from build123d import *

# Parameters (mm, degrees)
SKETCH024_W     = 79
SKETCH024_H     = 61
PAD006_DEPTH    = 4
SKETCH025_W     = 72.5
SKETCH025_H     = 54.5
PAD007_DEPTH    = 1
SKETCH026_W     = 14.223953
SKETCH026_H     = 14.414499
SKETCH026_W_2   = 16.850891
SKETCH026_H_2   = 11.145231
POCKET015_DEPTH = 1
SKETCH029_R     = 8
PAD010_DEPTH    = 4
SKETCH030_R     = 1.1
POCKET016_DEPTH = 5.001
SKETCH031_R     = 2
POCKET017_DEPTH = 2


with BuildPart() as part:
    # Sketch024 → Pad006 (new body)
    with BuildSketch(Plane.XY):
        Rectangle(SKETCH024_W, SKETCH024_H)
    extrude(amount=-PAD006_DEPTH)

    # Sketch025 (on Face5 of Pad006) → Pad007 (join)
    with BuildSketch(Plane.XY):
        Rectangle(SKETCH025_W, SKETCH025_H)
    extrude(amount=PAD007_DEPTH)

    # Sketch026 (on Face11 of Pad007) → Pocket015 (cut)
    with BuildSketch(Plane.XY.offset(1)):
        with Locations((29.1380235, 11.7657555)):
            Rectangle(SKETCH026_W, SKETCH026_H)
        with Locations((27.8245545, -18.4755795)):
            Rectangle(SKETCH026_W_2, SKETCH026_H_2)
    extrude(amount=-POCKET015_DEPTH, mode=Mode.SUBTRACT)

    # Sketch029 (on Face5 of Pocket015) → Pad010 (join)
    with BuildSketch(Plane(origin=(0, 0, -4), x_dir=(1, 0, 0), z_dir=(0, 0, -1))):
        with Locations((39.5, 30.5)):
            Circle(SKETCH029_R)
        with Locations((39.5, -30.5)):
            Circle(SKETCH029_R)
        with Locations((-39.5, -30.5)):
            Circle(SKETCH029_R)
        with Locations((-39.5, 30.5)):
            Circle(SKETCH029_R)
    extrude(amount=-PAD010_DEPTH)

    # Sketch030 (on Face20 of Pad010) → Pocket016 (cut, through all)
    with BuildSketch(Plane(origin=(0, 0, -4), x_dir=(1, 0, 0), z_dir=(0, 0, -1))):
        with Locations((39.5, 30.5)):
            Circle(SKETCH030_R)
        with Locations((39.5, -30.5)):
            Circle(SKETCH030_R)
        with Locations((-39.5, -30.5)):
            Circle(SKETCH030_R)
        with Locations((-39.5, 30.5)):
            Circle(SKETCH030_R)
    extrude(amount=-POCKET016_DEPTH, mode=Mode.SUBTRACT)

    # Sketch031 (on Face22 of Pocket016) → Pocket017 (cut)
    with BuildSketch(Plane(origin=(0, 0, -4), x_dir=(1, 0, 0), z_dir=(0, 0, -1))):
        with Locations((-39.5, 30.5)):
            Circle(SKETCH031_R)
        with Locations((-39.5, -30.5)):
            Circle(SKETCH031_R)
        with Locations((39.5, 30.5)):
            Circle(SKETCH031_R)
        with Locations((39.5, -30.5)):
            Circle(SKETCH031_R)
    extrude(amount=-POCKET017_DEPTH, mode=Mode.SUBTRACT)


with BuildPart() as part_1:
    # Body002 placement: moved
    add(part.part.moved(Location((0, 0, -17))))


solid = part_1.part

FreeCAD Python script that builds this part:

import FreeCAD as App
import Part
import Sketcher

V = App.Vector

doc = App.newDocument("Part")
body = doc.addObject("PartDesign::Body", "Body")

# Sketch on XY plane
sketch1 = body.newObject("Sketcher::SketchObject", "Sketch")
sketch1.AttachmentSupport = (doc.getObject("XY_Plane"), [""])
sketch1.MapMode = "FlatFace"
sketch1.addGeometry([
    Part.LineSegment(V(-40, 30, 0), V(-40, -30, 0)),
    Part.LineSegment(V(-40, -30, 0), V(40, -30, 0)),
    Part.LineSegment(V(40, -30, 0), V(40, 30, 0)),
    Part.LineSegment(V(40, 30, 0), V(-40, 30, 0)),
], False)
sketch1.addConstraint([
    Sketcher.Constraint("Coincident", 0, 2, 1, 1),
    Sketcher.Constraint("Coincident", 1, 2, 2, 1),
    Sketcher.Constraint("Coincident", 2, 2, 3, 1),
    Sketcher.Constraint("Coincident", 3, 2, 0, 1),
    Sketcher.Constraint("Vertical", 0),
    Sketcher.Constraint("Horizontal", 1),
    Sketcher.Constraint("Vertical", 2),
    Sketcher.Constraint("Horizontal", 3),
    Sketcher.Constraint("Symmetric", 0, 2, 2, 2, -1, 1),
    Sketcher.Constraint("DistanceX", 1, 1, 1, 2, 79.0),
    Sketcher.Constraint("DistanceY", 0, 2, 0, 1, 61.0),
])
pad1 = body.newObject("PartDesign::Pad", "Pad")
pad1.Profile = sketch1
pad1.Length = 4
pad1.Reversed = True

# Sketch on XY plane
sketch2 = body.newObject("Sketcher::SketchObject", "Sketch001")
sketch2.AttachmentSupport = (doc.getObject("XY_Plane"), [""])
sketch2.MapMode = "FlatFace"
sketch2.addGeometry([
    Part.LineSegment(V(-36, 27, 0), V(-36, -27, 0)),
    Part.LineSegment(V(-36, -27, 0), V(36, -27, 0)),
    Part.LineSegment(V(36, -27, 0), V(36, 27, 0)),
    Part.LineSegment(V(36, 27, 0), V(-36, 27, 0)),
], False)
sketch2.addConstraint([
    Sketcher.Constraint("Coincident", 0, 2, 1, 1),
    Sketcher.Constraint("Coincident", 1, 2, 2, 1),
    Sketcher.Constraint("Coincident", 2, 2, 3, 1),
    Sketcher.Constraint("Coincident", 3, 2, 0, 1),
    Sketcher.Constraint("Vertical", 0),
    Sketcher.Constraint("Horizontal", 1),
    Sketcher.Constraint("Vertical", 2),
    Sketcher.Constraint("Horizontal", 3),
    Sketcher.Constraint("Symmetric", 0, 2, 2, 2, -1, 1),
    Sketcher.Constraint("DistanceX", 1, 1, 1, 2, 72.5),
    Sketcher.Constraint("DistanceY", 0, 2, 0, 1, 54.5),
])
pad2 = body.newObject("PartDesign::Pad", "Pad001")
pad2.Profile = sketch2
pad2.Length = 1

# Sketch on XY plane
sketch3 = body.newObject("Sketcher::SketchObject", "Sketch002")
sketch3.AttachmentSupport = (doc.getObject("XY_Plane"), [""])
sketch3.MapMode = "FlatFace"
sketch3.AttachmentOffset = App.Placement(V(0, 0, 1), App.Rotation())
sketch3.addGeometry([
    Part.LineSegment(V(22, 19, 0), V(22, 5, 0)),  # 0
    Part.LineSegment(V(22, 5, 0), V(36, 5, 0)),  # 1
    Part.LineSegment(V(36, 5, 0), V(36, 19, 0)),  # 2
    Part.LineSegment(V(36, 19, 0), V(22, 19, 0)),  # 3
    Part.LineSegment(V(19, -13, 0), V(19, -24, 0)),  # 4
    Part.LineSegment(V(19, -24, 0), V(36, -24, 0)),  # 5
    Part.LineSegment(V(36, -24, 0), V(36, -13, 0)),  # 6
    Part.LineSegment(V(36, -13, 0), V(19, -13, 0)),  # 7
], False)
sketch3.addConstraint([
    Sketcher.Constraint("Coincident", 0, 2, 1, 1),
    Sketcher.Constraint("Coincident", 1, 2, 2, 1),
    Sketcher.Constraint("Coincident", 2, 2, 3, 1),
    Sketcher.Constraint("Coincident", 3, 2, 0, 1),
    Sketcher.Constraint("Coincident", 4, 2, 5, 1),
    Sketcher.Constraint("Coincident", 5, 2, 6, 1),
    Sketcher.Constraint("Coincident", 6, 2, 7, 1),
    Sketcher.Constraint("Coincident", 7, 2, 4, 1),
    Sketcher.Constraint("Vertical", 0),
    Sketcher.Constraint("Horizontal", 1),
    Sketcher.Constraint("Vertical", 2),
    Sketcher.Constraint("Horizontal", 3),
    Sketcher.Constraint("Vertical", 4),
    Sketcher.Constraint("Horizontal", 5),
    Sketcher.Constraint("Vertical", 6),
    Sketcher.Constraint("Horizontal", 7),
    Sketcher.Constraint("Vertical", 2, 2, 5, 2),
    Sketcher.Constraint("DistanceX", -1, 1, 1, 2, 36.25),
    Sketcher.Constraint("DistanceY", 0, 2, 0, 1, 14.414499),
    Sketcher.Constraint("DistanceX", 5, 1, 5, 2, 16.850891),
    Sketcher.Constraint("DistanceY", 4, 2, 4, 1, 11.145231),
    Sketcher.Constraint("DistanceY", 4, 2, 0, 2, 28.606701),
    Sketcher.Constraint("DistanceX", 1, 1, 1, 2, 14.223953),
    Sketcher.Constraint("DistanceY", -1, 1, 0, 2, 4.558506),
])
pocket1 = body.newObject("PartDesign::Pocket", "Pocket")
pocket1.Profile = sketch3
pocket1.Length = 1

# Sketch on XY plane
sketch4 = body.newObject("Sketcher::SketchObject", "Sketch003")
sketch4.AttachmentSupport = (doc.getObject("XY_Plane"), [""])
sketch4.MapMode = "FlatFace"
sketch4.AttachmentOffset = App.Placement(V(0, 0, -4), App.Rotation())
sketch4.addGeometry([
    Part.Circle(V(40, -30, 0), V(0, 0, 1), 8),
    Part.Circle(V(40, 30, 0), V(0, 0, 1), 8),
    Part.Circle(V(-40, 30, 0), V(0, 0, 1), 8),
    Part.Circle(V(-40, -30, 0), V(0, 0, 1), 8),
], False)
sketch4.addConstraint([
    Sketcher.Constraint("Equal", 0, 1),
    Sketcher.Constraint("Equal", 1, 2),
    Sketcher.Constraint("Equal", 2, 3),
    Sketcher.Constraint("Symmetric", 0, 3, 2, 3, -1, 1),
    Sketcher.Constraint("Symmetric", 1, 3, 3, 3, -1, 1),
    Sketcher.Constraint("Symmetric", 1, 3, 2, 3, -2),
    Sketcher.Constraint("Diameter", 0, 16.0),
    Sketcher.Constraint("DistanceY", 0, 3, 1, 3, 61.0),
    Sketcher.Constraint("DistanceX", 2, 3, 1, 3, 79.0),
])
pad3 = body.newObject("PartDesign::Pad", "Pad002")
pad3.Profile = sketch4
pad3.Length = 4

# Sketch on XY plane
sketch5 = body.newObject("Sketcher::SketchObject", "Sketch004")
sketch5.AttachmentSupport = (doc.getObject("XY_Plane"), [""])
sketch5.MapMode = "FlatFace"
sketch5.AttachmentOffset = App.Placement(V(0, 0, -4), App.Rotation())
sketch5.addGeometry([
    Part.Circle(V(39.5, -30.5, 0), V(0, 0, 1), 1.1),
    Part.Circle(V(39.5, 30.5, 0), V(0, 0, 1), 1.1),
    Part.Circle(V(-39.5, 30.5, 0), V(0, 0, 1), 1.1),
    Part.Circle(V(-39.5, -30.5, 0), V(0, 0, 1), 1.1),
], False)
sketch5.addConstraint([
    Sketcher.Constraint("Equal", 0, 1),
    Sketcher.Constraint("Equal", 1, 2),
    Sketcher.Constraint("Equal", 2, 3),
    Sketcher.Constraint("Symmetric", 0, 3, 2, 3, -1, 1),
    Sketcher.Constraint("Symmetric", 1, 3, 3, 3, -1, 1),
    Sketcher.Constraint("Symmetric", 1, 3, 2, 3, -2),
    Sketcher.Constraint("Diameter", 0, 2.2),
    Sketcher.Constraint("DistanceY", 0, 3, 1, 3, 61.0),
    Sketcher.Constraint("DistanceX", 2, 3, 1, 3, 79.0),
])
pocket2 = body.newObject("PartDesign::Pocket", "Pocket001")
pocket2.Profile = sketch5
pocket2.Type = "ThroughAll"
pocket2.Reversed = True

# Sketch on XY plane
sketch6 = body.newObject("Sketcher::SketchObject", "Sketch005")
sketch6.AttachmentSupport = (doc.getObject("XY_Plane"), [""])
sketch6.MapMode = "FlatFace"
sketch6.AttachmentOffset = App.Placement(V(0, 0, -4), App.Rotation())
sketch6.addGeometry([
    Part.Circle(V(-39.5, -30.5, 0), V(0, 0, 1), 2),
    Part.Circle(V(-39.5, 30.5, 0), V(0, 0, 1), 2),
    Part.Circle(V(39.5, -30.5, 0), V(0, 0, 1), 2),
    Part.Circle(V(39.5, 30.5, 0), V(0, 0, 1), 2),
], False)
sketch6.addConstraint([
    Sketcher.Constraint("Equal", 0, 1),
    Sketcher.Constraint("Equal", 1, 2),
    Sketcher.Constraint("Equal", 2, 3),
    Sketcher.Constraint("Symmetric", 1, 3, 2, 3, -1, 1),
    Sketcher.Constraint("Symmetric", 0, 3, 3, 3, -1, 1),
    Sketcher.Constraint("Symmetric", 0, 3, 2, 3, -2),
    Sketcher.Constraint("Diameter", 0, 4.0),
    Sketcher.Constraint("DistanceY", 0, 3, 1, 3, 61.0),
    Sketcher.Constraint("DistanceX", 0, 3, 2, 3, 79.0),
])
pocket3 = body.newObject("PartDesign::Pocket", "Pocket002")
pocket3.Profile = sketch6
pocket3.Length = 2
pocket3.Reversed = True
body2 = doc.addObject("PartDesign::Body", "Body001")
doc.recompute()

body.Placement = App.Placement(V(0, 0, -17), App.Rotation(V(0, 0, 1), 0))
boolean = body2.newObject("PartDesign::Boolean", "Boolean")
boolean.Type = "Fuse"
boolean.addObjects([body])

doc.recompute()
